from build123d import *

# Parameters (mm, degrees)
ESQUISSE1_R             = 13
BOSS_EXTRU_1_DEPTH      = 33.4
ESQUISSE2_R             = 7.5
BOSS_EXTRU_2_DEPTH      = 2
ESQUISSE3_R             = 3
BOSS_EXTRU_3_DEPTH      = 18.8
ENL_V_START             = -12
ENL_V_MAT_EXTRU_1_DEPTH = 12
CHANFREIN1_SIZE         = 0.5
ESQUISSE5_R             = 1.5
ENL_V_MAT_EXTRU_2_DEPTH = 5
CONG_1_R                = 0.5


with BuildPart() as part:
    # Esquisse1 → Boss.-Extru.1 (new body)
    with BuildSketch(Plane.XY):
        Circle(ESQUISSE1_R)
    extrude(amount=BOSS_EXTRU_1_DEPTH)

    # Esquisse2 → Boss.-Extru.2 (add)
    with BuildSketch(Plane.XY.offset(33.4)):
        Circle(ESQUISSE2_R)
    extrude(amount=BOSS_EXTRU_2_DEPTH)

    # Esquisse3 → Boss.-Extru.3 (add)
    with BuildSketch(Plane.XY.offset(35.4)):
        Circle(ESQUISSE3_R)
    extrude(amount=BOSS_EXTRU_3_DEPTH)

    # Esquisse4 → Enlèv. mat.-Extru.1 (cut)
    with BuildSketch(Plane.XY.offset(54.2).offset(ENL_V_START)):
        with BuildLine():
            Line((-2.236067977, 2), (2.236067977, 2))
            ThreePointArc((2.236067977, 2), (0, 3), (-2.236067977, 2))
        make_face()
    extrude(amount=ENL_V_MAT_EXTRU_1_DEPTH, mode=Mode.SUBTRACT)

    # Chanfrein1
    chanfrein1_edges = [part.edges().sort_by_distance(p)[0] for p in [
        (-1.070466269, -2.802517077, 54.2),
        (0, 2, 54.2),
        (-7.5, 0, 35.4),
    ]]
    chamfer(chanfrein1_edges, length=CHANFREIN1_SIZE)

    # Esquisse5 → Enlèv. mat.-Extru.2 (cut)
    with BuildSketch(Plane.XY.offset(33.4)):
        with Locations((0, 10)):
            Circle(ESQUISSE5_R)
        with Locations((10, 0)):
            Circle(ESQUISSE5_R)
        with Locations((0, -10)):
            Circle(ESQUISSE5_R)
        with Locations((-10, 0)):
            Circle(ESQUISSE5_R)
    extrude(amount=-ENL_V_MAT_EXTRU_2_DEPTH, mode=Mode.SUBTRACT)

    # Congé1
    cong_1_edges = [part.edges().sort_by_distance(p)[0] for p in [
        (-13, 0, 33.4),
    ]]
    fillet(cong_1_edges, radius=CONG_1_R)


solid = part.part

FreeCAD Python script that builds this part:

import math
import FreeCAD as App
import Part
import Sketcher

V = App.Vector
Q = App.Units.Quantity


def edges_at(feature, points):
    """Names of the edges that pass closest to the given points."""
    edges = feature.Shape.Edges
    near = lambda p: min(range(len(edges)), key=lambda i: edges[i].distToShape(Part.Vertex(*p))[0])
    return sorted({f"Edge{near(p) + 1}" for p in points})

doc = App.newDocument("Part")
params = doc.addObject("Spreadsheet::Sheet", "Params")
for row, (alias, value) in enumerate([
    ("sketch1_diameter", "26 mm"),
    ("pad1_length", "33.4 mm"),
    ("sketch2_diameter", "15 mm"),
    ("pad2_length", "2 mm"),
    ("sketch3_diameter", "6 mm"),
    ("pad3_length", "18.8 mm"),
    ("sketch4_radius", "3 mm"),
    ("pocket1_length", "12 mm"),
    ("chamfer_size", "0.5 mm"),
    ("sketch5_diameter", "3 mm"),
    ("pocket2_length", "5 mm"),
    ("fillet_radius", "0.5 mm"),
], start=1):
    params.set(f"A{row}", alias)
    params.set(f"B{row}", "=" + value)
    params.setAlias(f"B{row}", alias)

body = doc.addObject("PartDesign::Body", "Body")

# Sketch on XY plane
sketch1 = body.newObject("Sketcher::SketchObject", "Sketch")
sketch1.AttachmentSupport = (doc.getObject("XY_Plane"), [""])
sketch1.MapMode = "FlatFace"
sketch1.addGeometry(Part.Circle(V(0, 0, 0), V(0, 0, 1), 13), False)
sketch1.addConstraint([
    Sketcher.Constraint("Coincident", 0, 3, -1, 1),
    Sketcher.Constraint("Diameter", 0, Q("26 mm")),
])
sketch1.setExpression("Constraints[1]", "Params.sketch1_diameter")
pad1 = body.newObject("PartDesign::Pad", "Pad")
pad1.Profile = sketch1
pad1.setExpression("Length", "Params.pad1_length")

# Sketch on XY plane
sketch2 = body.newObject("Sketcher::SketchObject", "Sketch001")
sketch2.AttachmentSupport = (doc.getObject("XY_Plane"), [""])
sketch2.MapMode = "FlatFace"
sketch2.AttachmentOffset = App.Placement(V(0, 0, 33.4), App.Rotation())
sketch2.addGeometry(Part.Circle(V(0, 0, 0), V(0, 0, 1), 7.5), False)
sketch2.addConstraint([
    Sketcher.Constraint("Coincident", 0, 3, -1, 1),
    Sketcher.Constraint("Diameter", 0, Q("15 mm")),
])
sketch2.setExpression("Constraints[1]", "Params.sketch2_diameter")
pad2 = body.newObject("PartDesign::Pad", "Pad001")
pad2.Profile = sketch2
pad2.setExpression("Length", "Params.pad2_length")

# Sketch on XY plane
sketch3 = body.newObject("Sketcher::SketchObject", "Sketch002")
sketch3.AttachmentSupport = (doc.getObject("XY_Plane"), [""])
sketch3.MapMode = "FlatFace"
sketch3.AttachmentOffset = App.Placement(V(0, 0, 35.4), App.Rotation())
sketch3.addGeometry(Part.Circle(V(0, 0, 0), V(0, 0, 1), 3), False)
sketch3.addConstraint([
    Sketcher.Constraint("Coincident", 0, 3, -1, 1),
    Sketcher.Constraint("Diameter", 0, Q("6 mm")),
])
sketch3.setExpression("Constraints[1]", "Params.sketch3_diameter")
pad3 = body.newObject("PartDesign::Pad", "Pad002")
pad3.Profile = sketch3
pad3.setExpression("Length", "Params.pad3_length")

# Sketch on XY plane
sketch4 = body.newObject("Sketcher::SketchObject", "Sketch003")
sketch4.AttachmentSupport = (doc.getObject("XY_Plane"), [""])
sketch4.MapMode = "FlatFace"
sketch4.AttachmentOffset = App.Placement(V(0, 0, 42.2), App.Rotation())
sketch4.addGeometry([
    Part.LineSegment(V(-2.236068, 2, 0), V(2.236068, 2, 0)),
    Part.ArcOfCircle(Part.Circle(V(0, 0, 0), V(0, 0, 1), 3), math.radians(41.810315), math.radians(138.189685)),
], False)
sketch4.addConstraint([
    Sketcher.Constraint("Coincident", 0, 1, 1, 2),
    Sketcher.Constraint("Coincident", 1, 1, 0, 2),
    Sketcher.Constraint("Horizontal", 0),
    Sketcher.Constraint("Coincident", 1, 3, -1, 1),
    Sketcher.Constraint("Radius", 1, Q("3 mm")),
    Sketcher.Constraint("DistanceY", -1, 1, 0, 1, Q("2 mm")),
])
sketch4.setExpression("Constraints[4]", "Params.sketch4_radius")
pocket1 = body.newObject("PartDesign::Pocket", "Pocket")
pocket1.Profile = sketch4
pocket1.setExpression("Length", "Params.pocket1_length")
pocket1.Reversed = True
doc.recompute()

chamfer = body.newObject("PartDesign::Chamfer", "Chamfer")
chamfer.Base = (pocket1, edges_at(pocket1, [(-1.07, -2.803, 54.2), (0, 2, 54.2), (-7.5, 0, 35.4)]))
chamfer.setExpression("Size", "Params.chamfer_size")

# Sketch on XY plane
sketch5 = body.newObject("Sketcher::SketchObject", "Sketch004")
sketch5.AttachmentSupport = (doc.getObject("XY_Plane"), [""])
sketch5.MapMode = "FlatFace"
sketch5.AttachmentOffset = App.Placement(V(0, 0, 33.4), App.Rotation())
sketch5.addGeometry([
    Part.Circle(V(0, 10, 0), V(0, 0, 1), 1.5),
    Part.Circle(V(10, 0, 0), V(0, 0, 1), 1.5),
    Part.Circle(V(0, -10, 0), V(0, 0, 1), 1.5),
    Part.Circle(V(-10, 0, 0), V(0, 0, 1), 1.5),
], False)
sketch5.addConstraint([
    Sketcher.Constraint("Equal", 0, 1),
    Sketcher.Constraint("Equal", 1, 2),
    Sketcher.Constraint("Equal", 2, 3),
    Sketcher.Constraint("Symmetric", 0, 3, 2, 3, -1, 1),
    Sketcher.Constraint("Symmetric", 1, 3, 3, 3, -1, 1),
    Sketcher.Constraint("PointOnObject", 0, 3, -2),
    Sketcher.Constraint("PointOnObject", 1, 3, -1),
    Sketcher.Constraint("Diameter", 0, Q("3 mm")),
    Sketcher.Constraint("DistanceY", -1, 1, 0, 3, Q("10 mm")),
    Sketcher.Constraint("DistanceX", -1, 1, 1, 3, Q("10 mm")),
])
sketch5.setExpression("Constraints[7]", "Params.sketch5_diameter")
pocket2 = body.newObject("PartDesign::Pocket", "Pocket001")
pocket2.Profile = sketch5
pocket2.setExpression("Length", "Params.pocket2_length")
doc.recompute()

fillet = body.newObject("PartDesign::Fillet", "Fillet")
fillet.Base = (pocket2, edges_at(pocket2, [(-13, 0, 33.4)]))
fillet.setExpression("Radius", "Params.fillet_radius")

doc.recompute()
